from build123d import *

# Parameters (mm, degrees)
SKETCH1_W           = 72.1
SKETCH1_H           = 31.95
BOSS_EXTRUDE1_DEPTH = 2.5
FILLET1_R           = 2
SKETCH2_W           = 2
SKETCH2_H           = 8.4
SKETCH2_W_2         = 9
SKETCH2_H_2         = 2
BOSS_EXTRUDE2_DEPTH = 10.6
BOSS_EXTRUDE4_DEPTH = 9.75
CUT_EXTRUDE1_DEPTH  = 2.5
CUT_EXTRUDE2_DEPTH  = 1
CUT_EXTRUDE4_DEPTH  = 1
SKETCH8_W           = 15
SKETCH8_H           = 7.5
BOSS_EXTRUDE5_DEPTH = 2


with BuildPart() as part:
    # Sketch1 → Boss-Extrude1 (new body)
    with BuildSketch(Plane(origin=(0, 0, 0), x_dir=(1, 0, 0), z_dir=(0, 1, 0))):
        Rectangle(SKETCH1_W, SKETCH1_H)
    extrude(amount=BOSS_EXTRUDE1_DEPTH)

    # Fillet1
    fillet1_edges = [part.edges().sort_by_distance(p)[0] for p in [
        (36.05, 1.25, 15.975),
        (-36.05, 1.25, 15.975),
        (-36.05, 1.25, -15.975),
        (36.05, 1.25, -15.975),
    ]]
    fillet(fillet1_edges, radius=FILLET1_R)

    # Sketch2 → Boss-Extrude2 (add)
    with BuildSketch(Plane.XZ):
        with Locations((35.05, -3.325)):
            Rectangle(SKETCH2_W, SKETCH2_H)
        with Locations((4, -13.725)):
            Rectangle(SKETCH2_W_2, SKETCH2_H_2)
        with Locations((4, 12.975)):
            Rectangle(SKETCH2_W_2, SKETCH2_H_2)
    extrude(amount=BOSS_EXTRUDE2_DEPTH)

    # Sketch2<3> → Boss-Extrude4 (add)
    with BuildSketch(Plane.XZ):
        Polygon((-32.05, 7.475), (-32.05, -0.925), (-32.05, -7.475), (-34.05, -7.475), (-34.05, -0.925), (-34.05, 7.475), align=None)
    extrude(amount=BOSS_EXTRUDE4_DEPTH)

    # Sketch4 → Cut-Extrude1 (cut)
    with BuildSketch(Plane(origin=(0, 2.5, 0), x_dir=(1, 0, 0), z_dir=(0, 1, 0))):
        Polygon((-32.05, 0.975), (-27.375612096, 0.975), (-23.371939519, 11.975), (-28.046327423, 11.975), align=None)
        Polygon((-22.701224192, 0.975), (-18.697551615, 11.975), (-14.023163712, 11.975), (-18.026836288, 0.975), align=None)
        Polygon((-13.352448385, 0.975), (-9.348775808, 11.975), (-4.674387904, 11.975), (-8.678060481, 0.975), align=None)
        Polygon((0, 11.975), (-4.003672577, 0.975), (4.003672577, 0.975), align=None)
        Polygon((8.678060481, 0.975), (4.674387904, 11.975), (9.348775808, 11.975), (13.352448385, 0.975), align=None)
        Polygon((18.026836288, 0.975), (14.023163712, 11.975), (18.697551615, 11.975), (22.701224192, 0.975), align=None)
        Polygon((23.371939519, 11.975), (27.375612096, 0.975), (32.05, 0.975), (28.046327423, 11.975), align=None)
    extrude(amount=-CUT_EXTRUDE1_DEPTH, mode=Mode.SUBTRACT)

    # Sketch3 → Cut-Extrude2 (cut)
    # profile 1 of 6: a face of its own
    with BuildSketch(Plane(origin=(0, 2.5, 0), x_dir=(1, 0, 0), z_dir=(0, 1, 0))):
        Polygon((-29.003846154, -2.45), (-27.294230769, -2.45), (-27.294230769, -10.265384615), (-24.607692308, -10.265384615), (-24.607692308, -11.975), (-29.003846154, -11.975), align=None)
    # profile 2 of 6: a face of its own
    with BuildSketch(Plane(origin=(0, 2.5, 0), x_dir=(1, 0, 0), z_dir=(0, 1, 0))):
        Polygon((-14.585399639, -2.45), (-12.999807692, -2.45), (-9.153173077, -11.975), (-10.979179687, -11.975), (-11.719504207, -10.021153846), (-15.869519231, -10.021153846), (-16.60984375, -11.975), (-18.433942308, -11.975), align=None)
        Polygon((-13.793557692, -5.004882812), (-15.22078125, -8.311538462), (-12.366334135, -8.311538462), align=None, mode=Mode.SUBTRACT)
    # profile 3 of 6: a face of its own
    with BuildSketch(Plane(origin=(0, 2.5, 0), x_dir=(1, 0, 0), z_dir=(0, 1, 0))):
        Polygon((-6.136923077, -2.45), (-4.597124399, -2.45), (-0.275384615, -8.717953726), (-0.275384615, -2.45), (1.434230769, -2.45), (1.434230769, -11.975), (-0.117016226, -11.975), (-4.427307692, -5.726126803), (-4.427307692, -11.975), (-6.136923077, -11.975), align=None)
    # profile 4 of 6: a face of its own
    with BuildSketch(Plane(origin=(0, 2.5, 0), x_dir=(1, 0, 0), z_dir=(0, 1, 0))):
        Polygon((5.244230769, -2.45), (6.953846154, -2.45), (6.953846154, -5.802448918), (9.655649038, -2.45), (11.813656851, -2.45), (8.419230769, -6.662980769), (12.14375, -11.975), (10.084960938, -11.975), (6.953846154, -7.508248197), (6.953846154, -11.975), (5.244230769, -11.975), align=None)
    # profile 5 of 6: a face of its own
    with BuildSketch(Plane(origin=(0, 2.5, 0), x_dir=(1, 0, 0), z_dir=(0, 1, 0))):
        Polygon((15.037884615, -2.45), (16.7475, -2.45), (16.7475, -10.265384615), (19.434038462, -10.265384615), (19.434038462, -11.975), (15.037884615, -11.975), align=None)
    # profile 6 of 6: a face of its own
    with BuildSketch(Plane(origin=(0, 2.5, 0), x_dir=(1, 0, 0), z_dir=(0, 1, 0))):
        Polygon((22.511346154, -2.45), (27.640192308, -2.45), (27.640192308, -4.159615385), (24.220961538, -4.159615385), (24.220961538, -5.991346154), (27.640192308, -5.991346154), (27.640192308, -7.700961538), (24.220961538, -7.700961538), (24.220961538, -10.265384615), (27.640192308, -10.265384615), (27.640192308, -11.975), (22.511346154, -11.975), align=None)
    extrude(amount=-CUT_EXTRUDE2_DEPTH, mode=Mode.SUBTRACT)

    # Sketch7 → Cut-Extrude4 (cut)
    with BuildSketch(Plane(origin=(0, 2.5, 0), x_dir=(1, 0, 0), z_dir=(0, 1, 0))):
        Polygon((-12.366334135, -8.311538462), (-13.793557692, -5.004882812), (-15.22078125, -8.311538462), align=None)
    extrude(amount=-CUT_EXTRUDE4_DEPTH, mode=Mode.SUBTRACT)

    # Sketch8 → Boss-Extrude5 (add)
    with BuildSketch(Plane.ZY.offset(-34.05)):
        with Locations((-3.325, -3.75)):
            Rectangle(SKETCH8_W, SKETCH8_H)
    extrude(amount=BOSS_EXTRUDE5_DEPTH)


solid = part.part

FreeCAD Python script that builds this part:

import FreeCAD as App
import Part
import Sketcher
from FreeCAD import Vector
Q = App.Units.Quantity


def edges_at(feature, points):
    """Names of the edges that pass closest to the given points."""
    edges = feature.Shape.Edges
    near = lambda p: min(range(len(edges)), key=lambda i: edges[i].distToShape(Part.Vertex(*p))[0])
    return sorted({f"Edge{near(p) + 1}" for p in points})

doc = App.newDocument("Part")
params = doc.addObject("Spreadsheet::Sheet", "Params")
for row, (alias, value) in enumerate([
    ("sketch1_width", "72.1 mm"),
    ("sketch1_height", "31.95 mm"),
    ("pad1_length", "2.5 mm"),
    ("fillet_radius", "2 mm"),
    ("sketch2_width", "2 mm"),
    ("sketch2_width2", "9 mm"),
    ("sketch2_height", "8.4 mm"),
    ("pad2_length", "10.6 mm"),
    ("sketch3_width", "2 mm"),
    ("sketch3_height", "14.95 mm"),
    ("pad3_length", "9.75 mm"),
    ("pocket1_length", "2.5 mm"),
    ("pocket2_length", "1 mm"),
    ("pocket3_length", "1 mm"),
    ("sketch7_height", "15 mm"),
    ("sketch7_width", "7.5 mm"),
    ("pad4_length", "2 mm"),
], start=1):
    params.set(f"A{row}", alias)
    params.set(f"B{row}", "=" + value)
    params.setAlias(f"B{row}", alias)

body = doc.addObject("PartDesign::Body", "Body")

# Sketch on XZ plane
sketch1 = doc.addObject("Sketcher::SketchObject", "Sketch")
body.addObject(sketch1)
sketch1.AttachmentSupport = (doc.XZ_Plane, [""])
sketch1.MapMode = "FlatFace"
sketch1.addGeometry([
    Part.LineSegment(Vector(-36, -16, 0), Vector(-36, 16, 0)),
    Part.LineSegment(Vector(-36, 16, 0), Vector(36, 16, 0)),
    Part.LineSegment(Vector(36, 16, 0), Vector(36, -16, 0)),
    Part.LineSegment(Vector(36, -16, 0), Vector(-36, -16, 0)),
], False)
sketch1.addConstraint([
    Sketcher.Constraint("Coincident", 0, 2, 1, 1),
    Sketcher.Constraint("Coincident", 1, 2, 2, 1),
    Sketcher.Constraint("Coincident", 2, 2, 3, 1),
    Sketcher.Constraint("Coincident", 3, 2, 0, 1),
    Sketcher.Constraint("Vertical", 0),
    Sketcher.Constraint("Horizontal", 1),
    Sketcher.Constraint("Vertical", 2),
    Sketcher.Constraint("Horizontal", 3),
    Sketcher.Constraint("Symmetric", 0, 2, 2, 2, -1, 1),
    Sketcher.Constraint("DistanceX", 1, 1, 1, 2, 72.1),
    Sketcher.Constraint("DistanceY", 0, 1, 0, 2, 31.95),
])
sketch1.setExpression("Constraints[9]", "Params.sketch1_width")
sketch1.setExpression("Constraints[10]", "Params.sketch1_height")
pad1 = doc.addObject("PartDesign::Pad", "Pad")
body.addObject(pad1)
pad1.Profile = sketch1
pad1.setExpression("Length", "Params.pad1_length")
pad1.Reversed = True
doc.recompute()

fillet = doc.addObject("PartDesign::Fillet", "Fillet")
body.addObject(fillet)
fillet.Base = (pad1, edges_at(pad1, [
    (36.05, 1.25, 15.975),
    (-36.05, 1.25, 15.975),
    (-36.05, 1.25, -15.975),
    (36.05, 1.25, -15.975),
]))
fillet.setExpression("Radius", "Params.fillet_radius")

# Sketch on XZ plane
sketch2 = doc.addObject("Sketcher::SketchObject", "Sketch001")
body.addObject(sketch2)
sketch2.AttachmentSupport = (doc.XZ_Plane, [""])
sketch2.MapMode = "FlatFace"
sketch2.addGeometry([
    Part.LineSegment(Vector(34, 0.9, 0), Vector(34, -7.5, 0)),  # 0
    Part.LineSegment(Vector(34, -7.5, 0), Vector(36, -7.5, 0)),  # 1
    Part.LineSegment(Vector(36, -7.5, 0), Vector(36, 0.9, 0)),  # 2
    Part.LineSegment(Vector(36, 0.9, 0), Vector(34, 0.9, 0)),  # 3
    Part.LineSegment(Vector(-0.5, -12.7, 0), Vector(-0.5, -14.7, 0)),  # 4
    Part.LineSegment(Vector(-0.5, -14.7, 0), Vector(8.5, -14.7, 0)),  # 5
    Part.LineSegment(Vector(8.5, -14.7, 0), Vector(8.5, -12.7, 0)),  # 6
    Part.LineSegment(Vector(8.5, -12.7, 0), Vector(-0.5, -12.7, 0)),  # 7
    Part.LineSegment(Vector(-0.5, 14, 0), Vector(-0.5, 12, 0)),  # 8
    Part.LineSegment(Vector(-0.5, 12, 0), Vector(8.5, 12, 0)),  # 9
    Part.LineSegment(Vector(8.5, 12, 0), Vector(8.5, 14, 0)),  # 10
    Part.LineSegment(Vector(8.5, 14, 0), Vector(-0.5, 14, 0)),  # 11
], False)
sketch2.addConstraint([
    Sketcher.Constraint("Coincident", 0, 2, 1, 1),
    Sketcher.Constraint("Coincident", 1, 2, 2, 1),
    Sketcher.Constraint("Coincident", 2, 2, 3, 1),
    Sketcher.Constraint("Coincident", 3, 2, 0, 1),
    Sketcher.Constraint("Coincident", 4, 2, 5, 1),
    Sketcher.Constraint("Coincident", 5, 2, 6, 1),
    Sketcher.Constraint("Coincident", 6, 2, 7, 1),
    Sketcher.Constraint("Coincident", 7, 2, 4, 1),
    Sketcher.Constraint("Coincident", 8, 2, 9, 1),
    Sketcher.Constraint("Coincident", 9, 2, 10, 1),
    Sketcher.Constraint("Coincident", 10, 2, 11, 1),
    Sketcher.Constraint("Coincident", 11, 2, 8, 1),
    Sketcher.Constraint("Vertical", 0),
    Sketcher.Constraint("Horizontal", 1),
    Sketcher.Constraint("Vertical", 2),
    Sketcher.Constraint("Horizontal", 3),
    Sketcher.Constraint("Vertical", 4),
    Sketcher.Constraint("Horizontal", 5),
    Sketcher.Constraint("Vertical", 6),
    Sketcher.Constraint("Horizontal", 7),
    Sketcher.Constraint("Vertical", 8),
    Sketcher.Constraint("Horizontal", 9),
    Sketcher.Constraint("Vertical", 10),
    Sketcher.Constraint("Horizontal", 11),
    Sketcher.Constraint("Vertical", 7, 2, 8, 2),
    Sketcher.Constraint("Vertical", 6, 2, 9, 2),
    Sketcher.Constraint("Equal", 3, 4),
    Sketcher.Constraint("Equal", 6, 8),
    Sketcher.Constraint("DistanceX", 1, 1, 1, 2, 2.0),
    Sketcher.Constraint("DistanceX", 5, 1, 5, 2, 9.0),
    Sketcher.Constraint("DistanceY", 0, 2, 0, 1, 8.4),
    Sketcher.Constraint("DistanceX", 4, 2, -1, 1, 0.5),
    Sketcher.Constraint("DistanceY", 4, 2, 0, 2, 7.2),
    Sketcher.Constraint("DistanceY", 7, 2, 8, 2, 24.7),
    Sketcher.Constraint("DistanceX", -1, 1, 0, 2, 34.05),
    Sketcher.Constraint("DistanceY", 0, 2, -1, 1, 7.525),
])
sketch2.setExpression("Constraints[28]", "Params.sketch2_width")
sketch2.setExpression("Constraints[29]", "Params.sketch2_width2")
sketch2.setExpression("Constraints[30]", "Params.sketch2_height")
pad2 = doc.addObject("PartDesign::Pad", "Pad001")
body.addObject(pad2)
pad2.Profile = sketch2
pad2.setExpression("Length", "Params.pad2_length")

# Sketch on XZ plane
sketch3 = doc.addObject("Sketcher::SketchObject", "Sketch002")
body.addObject(sketch3)
sketch3.AttachmentSupport = (doc.XZ_Plane, [""])
sketch3.MapMode = "FlatFace"
sketch3.addGeometry([
    Part.LineSegment(Vector(-32, -7.5, 0), Vector(-32, 7.5, 0)),
    Part.LineSegment(Vector(-32, 7.5, 0), Vector(-34, 7.5, 0)),
    Part.LineSegment(Vector(-34, 7.5, 0), Vector(-34, -7.5, 0)),
    Part.LineSegment(Vector(-34, -7.5, 0), Vector(-32, -7.5, 0)),
], False)
sketch3.addConstraint([
    Sketcher.Constraint("Coincident", 0, 2, 1, 1),
    Sketcher.Constraint("Coincident", 1, 2, 2, 1),
    Sketcher.Constraint("Coincident", 2, 2, 3, 1),
    Sketcher.Constraint("Coincident", 3, 2, 0, 1),
    Sketcher.Constraint("Vertical", 0),
    Sketcher.Constraint("Horizontal", 1),
    Sketcher.Constraint("Vertical", 2),
    Sketcher.Constraint("Horizontal", 3),
    Sketcher.Constraint("DistanceX", 1, 2, 1, 1, 2.0),
    Sketcher.Constraint("DistanceY", 0, 1, 0, 2, 14.95),
    Sketcher.Constraint("DistanceX", 0, 2, -1, 1, 32.05),
    Sketcher.Constraint("DistanceY", -1, 1, 0, 2, 7.475),
])
sketch3.setExpression("Constraints[8]", "Params.sketch3_width")
sketch3.setExpression("Constraints[9]", "Params.sketch3_height")
pad3 = doc.addObject("PartDesign::Pad", "Pad002")
body.addObject(pad3)
pad3.Profile = sketch3
pad3.setExpression("Length", "Params.pad3_length")

# Sketch on XZ plane
sketch4 = doc.addObject("Sketcher::SketchObject", "Sketch003")
body.addObject(sketch4)
sketch4.AttachmentSupport = (doc.XZ_Plane, [""])
sketch4.MapMode = "FlatFace"
sketch4.AttachmentOffset = App.Placement(Vector(0, 0, -2.5), App.Rotation())
sketch4.addGeometry([
    Part.LineSegment(Vector(-32, -1, 0), Vector(-27.4, -1, 0)),  # 0
    Part.LineSegment(Vector(-27.4, -1, 0), Vector(-23.4, -12, 0)),  # 1
    Part.LineSegment(Vector(-23.4, -12, 0), Vector(-28, -12, 0)),  # 2
    Part.LineSegment(Vector(-28, -12, 0), Vector(-32, -1, 0)),  # 3
    Part.LineSegment(Vector(-18.7, -12, 0), Vector(-22.7, -1, 0)),  # 4
    Part.LineSegment(Vector(-22.7, -1, 0), Vector(-18, -1, 0)),  # 5
    Part.LineSegment(Vector(-18, -1, 0), Vector(-14, -12, 0)),  # 6
    Part.LineSegment(Vector(-14, -12, 0), Vector(-18.7, -12, 0)),  # 7
    Part.LineSegment(Vector(-9.3, -12, 0), Vector(-13.4, -1, 0)),  # 8
    Part.LineSegment(Vector(-13.4, -1, 0), Vector(-8.7, -1, 0)),  # 9
    Part.LineSegment(Vector(-8.7, -1, 0), Vector(-4.7, -12, 0)),  # 10
    Part.LineSegment(Vector(-4.7, -12, 0), Vector(-9.3, -12, 0)),  # 11
    Part.LineSegment(Vector(0, -12, 0), Vector(-4, -1, 0)),  # 12
    Part.LineSegment(Vector(-4, -1, 0), Vector(4, -1, 0)),  # 13
    Part.LineSegment(Vector(4, -1, 0), Vector(0, -12, 0)),  # 14
    Part.LineSegment(Vector(4.7, -12, 0), Vector(8.7, -1, 0)),  # 15
    Part.LineSegment(Vector(8.7, -1, 0), Vector(13.4, -1, 0)),  # 16
    Part.LineSegment(Vector(13.4, -1, 0), Vector(9.3, -12, 0)),  # 17
    Part.LineSegment(Vector(9.3, -12, 0), Vector(4.7, -12, 0)),  # 18
    Part.LineSegment(Vector(14, -12, 0), Vector(18, -1, 0)),  # 19
    Part.LineSegment(Vector(18, -1, 0), Vector(22.7, -1, 0)),  # 20
    Part.LineSegment(Vector(22.7, -1, 0), Vector(18.7, -12, 0)),  # 21
    Part.LineSegment(Vector(18.7, -12, 0), Vector(14, -12, 0)),  # 22
    Part.LineSegment(Vector(23.4, -12, 0), Vector(27.4, -1, 0)),  # 23
    Part.LineSegment(Vector(27.4, -1, 0), Vector(32, -1, 0)),  # 24
    Part.LineSegment(Vector(32, -1, 0), Vector(28, -12, 0)),  # 25
    Part.LineSegment(Vector(28, -12, 0), Vector(23.4, -12, 0)),  # 26
], False)
sketch4.addConstraint([
    Sketcher.Constraint("Coincident", 0, 2, 1, 1),
    Sketcher.Constraint("Coincident", 1, 2, 2, 1),
    Sketcher.Constraint("Coincident", 2, 2, 3, 1),
    Sketcher.Constraint("Coincident", 3, 2, 0, 1),
    Sketcher.Constraint("Coincident", 4, 2, 5, 1),
    Sketcher.Constraint("Coincident", 5, 2, 6, 1),
    Sketcher.Constraint("Coincident", 6, 2, 7, 1),
    Sketcher.Constraint("Coincident", 7, 2, 4, 1),
    Sketcher.Constraint("Coincident", 8, 2, 9, 1),
    Sketcher.Constraint("Coincident", 9, 2, 10, 1),
    Sketcher.Constraint("Coincident", 10, 2, 11, 1),
    Sketcher.Constraint("Coincident", 11, 2, 8, 1),
    Sketcher.Constraint("Coincident", 12, 2, 13, 1),
    Sketcher.Constraint("Coincident", 13, 2, 14, 1),
    Sketcher.Constraint("Coincident", 14, 2, 12, 1),
    Sketcher.Constraint("Coincident", 15, 2, 16, 1),
    Sketcher.Constraint("Coincident", 16, 2, 17, 1),
    Sketcher.Constraint("Coincident", 17, 2, 18, 1),
    Sketcher.Constraint("Coincident", 18, 2, 15, 1),
    Sketcher.Constraint("Coincident", 19, 2, 20, 1),
    Sketcher.Constraint("Coincident", 20, 2, 21, 1),
    Sketcher.Constraint("Coincident", 21, 2, 22, 1),
    Sketcher.Constraint("Coincident", 22, 2, 19, 1),
    Sketcher.Constraint("Coincident", 23, 2, 24, 1),
    Sketcher.Constraint("Coincident", 24, 2, 25, 1),
    Sketcher.Constraint("Coincident", 25, 2, 26, 1),
    Sketcher.Constraint("Coincident", 26, 2, 23, 1),
    Sketcher.Constraint("Horizontal", 0),
    Sketcher.Constraint("Horizontal", 2),
    Sketcher.Constraint("Horizontal", 5),
    Sketcher.Constraint("Horizontal", 7),
    Sketcher.Constraint("Horizontal", 9),
    Sketcher.Constraint("Horizontal", 11),
    Sketcher.Constraint("Horizontal", 13),
    Sketcher.Constraint("Horizontal", 16),
    Sketcher.Constraint("Horizontal", 18),
    Sketcher.Constraint("Horizontal", 20),
    Sketcher.Constraint("Horizontal", 22),
    Sketcher.Constraint("Horizontal", 24),
    Sketcher.Constraint("Horizontal", 26),
    Sketcher.Constraint("Symmetric", 9, 2, 15, 2, -2),
    Sketcher.Constraint("Symmetric", 11, 2, 17, 2, -2),
    Sketcher.Constraint("Symmetric", 5, 2, 19, 2, -2),
    Sketcher.Constraint("Symmetric", 7, 2, 21, 2, -2),
    Sketcher.Constraint("Symmetric", 0, 2, 23, 2, -2),
    Sketcher.Constraint("Symmetric", 2, 2, 25, 2, -2),
    Sketcher.Constraint("PointOnObject", 14, 2, -2),
    Sketcher.Constraint("Parallel", 1, 3),
    Sketcher.Constraint("Parallel", 3, 4),
    Sketcher.Constraint("Parallel", 4, 6),
    Sketcher.Constraint("Parallel", 6, 8),
    Sketcher.Constraint("Parallel", 8, 10),
    Sketcher.Constraint("Parallel", 10, 12),
    Sketcher.Constraint("Parallel", 14, 15),
    Sketcher.Constraint("Parallel", 15, 17),
    Sketcher.Constraint("Parallel", 17, 19),
    Sketcher.Constraint("Parallel", 19, 21),
    Sketcher.Constraint("Parallel", 21, 23),
    Sketcher.Constraint("Parallel", 23, 25),
    Sketcher.Constraint("Horizontal", 3, 2, 4, 2),
    Sketcher.Constraint("Horizontal", 2, 2, 6, 2),
    Sketcher.Constraint("Horizontal", 5, 2, 8, 2),
    Sketcher.Constraint("Horizontal", 7, 2, 10, 2),
    Sketcher.Constraint("Horizontal", 9, 2, 12, 2),
    Sketcher.Constraint("Horizontal", 11, 2, 14, 2),
    Sketcher.Constraint("Equal", 2, 5),
    Sketcher.Constraint("Equal", 7, 9),
    Sketcher.Constraint("Equal", 11, 16),
    Sketcher.Constraint("Angle", 1, Q("-70 deg")),
    Sketcher.Constraint("DistanceY", 1, 2, 0, 2, 11.0),
    Sketcher.Constraint("DistanceX", 3, 2, -1, 1, 32.05),
    Sketcher.Constraint("DistanceY", 0, 2, -1, 1, 0.975),
    Sketcher.Constraint("DistanceX", 0, 1, 0, 2, 4.674388),
    Sketcher.Constraint("DistanceX", 7, 2, -1, 1, 18.697552),
    Sketcher.Constraint("DistanceX", 8, 2, -1, 1, 13.352448),
])
pocket1 = doc.addObject("PartDesign::Pocket", "Pocket")
body.addObject(pocket1)
pocket1.Profile = sketch4
pocket1.setExpression("Length", "Params.pocket1_length")
pocket1.Reversed = True

# Sketch on XZ plane
sketch5 = doc.addObject("Sketcher::SketchObject", "Sketch004")
body.addObject(sketch5)
sketch5.AttachmentSupport = (doc.XZ_Plane, [""])
sketch5.MapMode = "FlatFace"
sketch5.AttachmentOffset = App.Placement(Vector(0, 0, -2.5), App.Rotation())
sketch5.addGeometry([
    Part.LineSegment(Vector(-27.3, 2.5, 0), Vector(-29, 2.5, 0)),  # 0
    Part.LineSegment(Vector(-29, 2.5, 0), Vector(-29, 12, 0)),  # 1
    Part.LineSegment(Vector(-29, 12, 0), Vector(-24.6, 12, 0)),  # 2
    Part.LineSegment(Vector(-24.6, 12, 0), Vector(-24.6, 10.3, 0)),  # 3
    Part.LineSegment(Vector(-24.6, 10.3, 0), Vector(-27.3, 10.3, 0)),  # 4
    Part.LineSegment(Vector(-27.3, 10.3, 0), Vector(-27.3, 2.5, 0)),  # 5
    Part.LineSegment(Vector(-13, 2.5, 0), Vector(-14.6, 2.5, 0)),  # 6
    Part.LineSegment(Vector(-14.6, 2.5, 0), Vector(-18.4, 12, 0)),  # 7
    Part.LineSegment(Vector(-18.4, 12, 0), Vector(-16.6, 12, 0)),  # 8
    Part.LineSegment(Vector(-16.6, 12, 0), Vector(-15.9, 10, 0)),  # 9
    Part.LineSegment(Vector(-15.9, 10, 0), Vector(-11.7, 10, 0)),  # 10
    Part.LineSegment(Vector(-11.7, 10, 0), Vector(-11, 12, 0)),  # 11
    Part.LineSegment(Vector(-11, 12, 0), Vector(-9.2, 12, 0)),  # 12
    Part.LineSegment(Vector(-9.2, 12, 0), Vector(-13, 2.5, 0)),  # 13
    Part.LineSegment(Vector(-13.8, 5, 0), Vector(-12.4, 8.3, 0)),  # 14
    Part.LineSegment(Vector(-12.4, 8.3, 0), Vector(-15.2, 8.3, 0)),  # 15
    Part.LineSegment(Vector(-15.2, 8.3, 0), Vector(-13.8, 5, 0)),  # 16
    Part.LineSegment(Vector(-4.6, 2.5, 0), Vector(-6.1, 2.5, 0)),  # 17
    Part.LineSegment(Vector(-6.1, 2.5, 0), Vector(-6.1, 12, 0)),  # 18
    Part.LineSegment(Vector(-6.1, 12, 0), Vector(-4.4, 12, 0)),  # 19
    Part.LineSegment(Vector(-4.4, 12, 0), Vector(-4.4, 5.7, 0)),  # 20
    Part.LineSegment(Vector(-4.4, 5.7, 0), Vector(-0.1, 12, 0)),  # 21
    Part.LineSegment(Vector(-0.1, 12, 0), Vector(1.4, 12, 0)),  # 22
    Part.LineSegment(Vector(1.4, 12, 0), Vector(1.4, 2.5, 0)),  # 23
    Part.LineSegment(Vector(1.4, 2.5, 0), Vector(-0.3, 2.5, 0)),  # 24
    Part.LineSegment(Vector(-0.3, 2.5, 0), Vector(-0.3, 8.7, 0)),  # 25
    Part.LineSegment(Vector(-0.3, 8.7, 0), Vector(-4.6, 2.5, 0)),  # 26
    Part.LineSegment(Vector(7, 2.5, 0), Vector(5.2, 2.5, 0)),  # 27
    Part.LineSegment(Vector(5.2, 2.5, 0), Vector(5.2, 12, 0)),  # 28
    Part.LineSegment(Vector(5.2, 12, 0), Vector(7, 12, 0)),  # 29
    Part.LineSegment(Vector(7, 12, 0), Vector(7, 7.5, 0)),  # 30
    Part.LineSegment(Vector(7, 7.5, 0), Vector(10.1, 12, 0)),  # 31
    Part.LineSegment(Vector(10.1, 12, 0), Vector(12.1, 12, 0)),  # 32
    Part.LineSegment(Vector(12.1, 12, 0), Vector(8.4, 6.7, 0)),  # 33
    Part.LineSegment(Vector(8.4, 6.7, 0), Vector(11.8, 2.5, 0)),  # 34
    Part.LineSegment(Vector(11.8, 2.5, 0), Vector(9.7, 2.5, 0)),  # 35
    Part.LineSegment(Vector(9.7, 2.5, 0), Vector(7, 5.8, 0)),  # 36
    Part.LineSegment(Vector(7, 5.8, 0), Vector(7, 2.5, 0)),  # 37
    Part.LineSegment(Vector(16.7, 2.5, 0), Vector(15, 2.5, 0)),  # 38
    Part.LineSegment(Vector(15, 2.5, 0), Vector(15, 12, 0)),  # 39
    Part.LineSegment(Vector(15, 12, 0), Vector(19.4, 12, 0)),  # 40
    Part.LineSegment(Vector(19.4, 12, 0), Vector(19.4, 10.3, 0)),  # 41
    Part.LineSegment(Vector(19.4, 10.3, 0), Vector(16.7, 10.3, 0)),  # 42
    Part.LineSegment(Vector(16.7, 10.3, 0), Vector(16.7, 2.5, 0)),  # 43
    Part.LineSegment(Vector(27.6, 2.5, 0), Vector(22.5, 2.5, 0)),  # 44
    Part.LineSegment(Vector(22.5, 2.5, 0), Vector(22.5, 12, 0)),  # 45
    Part.LineSegment(Vector(22.5, 12, 0), Vector(27.6, 12, 0)),  # 46
    Part.LineSegment(Vector(27.6, 12, 0), Vector(27.6, 10.3, 0)),  # 47
    Part.LineSegment(Vector(27.6, 10.3, 0), Vector(24.2, 10.3, 0)),  # 48
    Part.LineSegment(Vector(24.2, 10.3, 0), Vector(24.2, 7.7, 0)),  # 49
    Part.LineSegment(Vector(24.2, 7.7, 0), Vector(27.6, 7.7, 0)),  # 50
    Part.LineSegment(Vector(27.6, 7.7, 0), Vector(27.6, 6, 0)),  # 51
    Part.LineSegment(Vector(27.6, 6, 0), Vector(24.2, 6, 0)),  # 52
    Part.LineSegment(Vector(24.2, 6, 0), Vector(24.2, 4.2, 0)),  # 53
    Part.LineSegment(Vector(24.2, 4.2, 0), Vector(27.6, 4.2, 0)),  # 54
    Part.LineSegment(Vector(27.6, 4.2, 0), Vector(27.6, 2.5, 0)),  # 55
], False)
sketch5.addConstraint([
    Sketcher.Constraint("Coincident", 0, 2, 1, 1),
    Sketcher.Constraint("Coincident", 1, 2, 2, 1),
    Sketcher.Constraint("Coincident", 2, 2, 3, 1),
    Sketcher.Constraint("Coincident", 3, 2, 4, 1),
    Sketcher.Constraint("Coincident", 4, 2, 5, 1),
    Sketcher.Constraint("Coincident", 5, 2, 0, 1),
    Sketcher.Constraint("Coincident", 6, 2, 7, 1),
    Sketcher.Constraint("Coincident", 7, 2, 8, 1),
    Sketcher.Constraint("Coincident", 8, 2, 9, 1),
    Sketcher.Constraint("Coincident", 9, 2, 10, 1),
    Sketcher.Constraint("Coincident", 10, 2, 11, 1),
    Sketcher.Constraint("Coincident", 11, 2, 12, 1),
    Sketcher.Constraint("Coincident", 12, 2, 13, 1),
    Sketcher.Constraint("Coincident", 13, 2, 6, 1),
    Sketcher.Constraint("Coincident", 14, 2, 15, 1),
    Sketcher.Constraint("Coincident", 15, 2, 16, 1),
    Sketcher.Constraint("Coincident", 16, 2, 14, 1),
    Sketcher.Constraint("Coincident", 17, 2, 18, 1),
    Sketcher.Constraint("Coincident", 18, 2, 19, 1),
    Sketcher.Constraint("Coincident", 19, 2, 20, 1),
    Sketcher.Constraint("Coincident", 20, 2, 21, 1),
    Sketcher.Constraint("Coincident", 21, 2, 22, 1),
    Sketcher.Constraint("Coincident", 22, 2, 23, 1),
    Sketcher.Constraint("Coincident", 23, 2, 24, 1),
    Sketcher.Constraint("Coincident", 24, 2, 25, 1),
    Sketcher.Constraint("Coincident", 25, 2, 26, 1),
    Sketcher.Constraint("Coincident", 26, 2, 17, 1),
    Sketcher.Constraint("Coincident", 27, 2, 28, 1),
    Sketcher.Constraint("Coincident", 28, 2, 29, 1),
    Sketcher.Constraint("Coincident", 29, 2, 30, 1),
    Sketcher.Constraint("Coincident", 30, 2, 31, 1),
    Sketcher.Constraint("Coincident", 31, 2, 32, 1),
    Sketcher.Constraint("Coincident", 32, 2, 33, 1),
    Sketcher.Constraint("Coincident", 33, 2, 34, 1),
    Sketcher.Constraint("Coincident", 34, 2, 35, 1),
    Sketcher.Constraint("Coincident", 35, 2, 36, 1),
    Sketcher.Constraint("Coincident", 36, 2, 37, 1),
    Sketcher.Constraint("Coincident", 37, 2, 27, 1),
    Sketcher.Constraint("Coincident", 38, 2, 39, 1),
    Sketcher.Constraint("Coincident", 39, 2, 40, 1),
    Sketcher.Constraint("Coincident", 40, 2, 41, 1),
    Sketcher.Constraint("Coincident", 41, 2, 42, 1),
    Sketcher.Constraint("Coincident", 42, 2, 43, 1),
    Sketcher.Constraint("Coincident", 43, 2, 38, 1),
    Sketcher.Constraint("Coincident", 44, 2, 45, 1),
    Sketcher.Constraint("Coincident", 45, 2, 46, 1),
    Sketcher.Constraint("Coincident", 46, 2, 47, 1),
    Sketcher.Constraint("Coincident", 47, 2, 48, 1),
    Sketcher.Constraint("Coincident", 48, 2, 49, 1),
    Sketcher.Constraint("Coincident", 49, 2, 50, 1),
    Sketcher.Constraint("Coincident", 50, 2, 51, 1),
    Sketcher.Constraint("Coincident", 51, 2, 52, 1),
    Sketcher.Constraint("Coincident", 52, 2, 53, 1),
    Sketcher.Constraint("Coincident", 53, 2, 54, 1),
    Sketcher.Constraint("Coincident", 54, 2, 55, 1),
    Sketcher.Constraint("Coincident", 55, 2, 44, 1),
    Sketcher.Constraint("Horizontal", 0),
    Sketcher.Constraint("Vertical", 1),
    Sketcher.Constraint("Horizontal", 2),
    Sketcher.Constraint("Vertical", 3),
    Sketcher.Constraint("Horizontal", 4),
    Sketcher.Constraint("Vertical", 5),
    Sketcher.Constraint("Horizontal", 6),
    Sketcher.Constraint("Horizontal", 8),
    Sketcher.Constraint("Horizontal", 10),
    Sketcher.Constraint("Horizontal", 12),
    Sketcher.Constraint("Horizontal", 15),
    Sketcher.Constraint("Horizontal", 17),
    Sketcher.Constraint("Vertical", 18),
    Sketcher.Constraint("Horizontal", 19),
    Sketcher.Constraint("Vertical", 20),
    Sketcher.Constraint("Horizontal", 22),
    Sketcher.Constraint("Vertical", 23),
    Sketcher.Constraint("Horizontal", 24),
    Sketcher.Constraint("Vertical", 25),
    Sketcher.Constraint("Horizontal", 27),
    Sketcher.Constraint("Vertical", 28),
    Sketcher.Constraint("Horizontal", 29),
    Sketcher.Constraint("Vertical", 30),
    Sketcher.Constraint("Horizontal", 32),
    Sketcher.Constraint("Horizontal", 35),
    Sketcher.Constraint("Vertical", 37),
    Sketcher.Constraint("Horizontal", 38),
    Sketcher.Constraint("Vertical", 39),
    Sketcher.Constraint("Horizontal", 40),
    Sketcher.Constraint("Vertical", 41),
    Sketcher.Constraint("Horizontal", 42),
    Sketcher.Constraint("Vertical", 43),
    Sketcher.Constraint("Horizontal", 44),
    Sketcher.Constraint("Vertical", 45),
    Sketcher.Constraint("Horizontal", 46),
    Sketcher.Constraint("Vertical", 47),
    Sketcher.Constraint("Horizontal", 48),
    Sketcher.Constraint("Vertical", 49),
    Sketcher.Constraint("Horizontal", 50),
    Sketcher.Constraint("Vertical", 51),
    Sketcher.Constraint("Horizontal", 52),
    Sketcher.Constraint("Vertical", 53),
    Sketcher.Constraint("Horizontal", 54),
    Sketcher.Constraint("Vertical", 55),
    Sketcher.Constraint("Horizontal", 5, 2, 6, 2),
    Sketcher.Constraint("Horizontal", 2, 2, 7, 2),
    Sketcher.Constraint("Horizontal", 8, 2, 11, 2),
    Sketcher.Constraint("Horizontal", 13, 2, 17, 2),
    Sketcher.Constraint("Horizontal", 12, 2, 18, 2),
    Sketcher.Constraint("Horizontal", 19, 2, 21, 2),
    Sketcher.Constraint("Horizontal", 17, 2, 23, 2),
    Sketcher.Constraint("Horizontal", 26, 2, 27, 2),
    Sketcher.Constraint("Horizontal", 22, 2, 28, 2),
    Sketcher.Constraint("Horizontal", 29, 2, 31, 2),
    Sketcher.Constraint("Horizontal", 27, 2, 34, 2),
    Sketcher.Constraint("Horizontal", 37, 2, 38, 2),
    Sketcher.Constraint("Horizontal", 32, 2, 39, 2),
    Sketcher.Constraint("Horizontal", 4, 2, 41, 2),
    Sketcher.Constraint("Horizontal", 43, 2, 44, 2),
    Sketcher.Constraint("Horizontal", 40, 2, 45, 2),
    Sketcher.Constraint("Horizontal", 42, 2, 47, 2),
    Sketcher.Constraint("Vertical", 30, 2, 36, 2),
    Sketcher.Constraint("Vertical", 47, 2, 50, 2),
    Sketcher.Constraint("Vertical", 49, 2, 52, 2),
    Sketcher.Constraint("Vertical", 51, 2, 54, 2),
    Sketcher.Constraint("Equal", 0, 19),
    Sketcher.Constraint("Equal", 19, 24),
    Sketcher.Constraint("Equal", 24, 27),
    Sketcher.Constraint("Equal", 29, 38),
    Sketcher.Constraint("Equal", 2, 40),
    Sketcher.Constraint("Equal", 38, 3),
    Sketcher.Constraint("Equal", 47, 51),
    Sketcher.Constraint("Equal", 51, 55),
    Sketcher.Constraint("Equal", 9, 11),
    Sketcher.Constraint("Equal", 14, 16),
    Sketcher.Constraint("DistanceY", 1, 1, 1, 2, 9.525),
    Sketcher.Constraint("DistanceY", -1, 1, 0, 2, 2.45),
    Sketcher.Constraint("DistanceX", 23, 2, 27, 2, 3.81),
    Sketcher.Constraint("DistanceX", 8, 1, 8, 2, 1.824099),
    Sketcher.Constraint("DistanceX", 17, 2, 17, 1, 1.539799),
    Sketcher.Constraint("DistanceX", 27, 2, 33, 2, 3.175),
    Sketcher.Constraint("Distance", 9, 2.089401),
    Sketcher.Constraint("Distance", 13, 10.272401),
    Sketcher.Constraint("Distance", 34, 5.410299),
    Sketcher.Constraint("DistanceX", 4, 2, 4, 1, 2.686538),
    Sketcher.Constraint("DistanceX", 6, 2, 6, 1, 1.585592),
    Sketcher.Constraint("DistanceX", 32, 1, 32, 2, 2.058789),
    Sketcher.Constraint("DistanceX", 48, 2, 48, 1, 3.419231),
    Sketcher.Constraint("DistanceY", 30, 2, 30, 1, 4.466752),
    Sketcher.Constraint("DistanceY", 37, 2, 37, 1, 3.352449),
    Sketcher.Constraint("DistanceY", 53, 2, 53, 1, 1.831731),
    Sketcher.Constraint("DistanceX", 6, 2, -1, 1, 14.5854),
    Sketcher.Constraint("DistanceX", -1, 1, 42, 2, 16.7475),
    Sketcher.Constraint("Distance", 14, 3.601519),
    Sketcher.Constraint("Distance", 33, 6.487649),
    Sketcher.Constraint("DistanceX", 0, 2, 0, 1, 1.709615),
    Sketcher.Constraint("DistanceX", 10, 1, 10, 2, 4.150015),
    Sketcher.Constraint("DistanceX", 12, 1, 12, 2, 1.826007),
    Sketcher.Constraint("DistanceX", 15, 2, 15, 1, 2.854447),
    Sketcher.Constraint("DistanceX", 22, 1, 22, 2, 1.551247),
    Sketcher.Constraint("DistanceX", 35, 2, 35, 1, 2.158008),
    Sketcher.Constraint("DistanceX", 44, 2, 44, 1, 5.128846),
    Sketcher.Constraint("DistanceY", 20, 2, 20, 1, 6.248873),
    Sketcher.Constraint("DistanceY", 25, 1, 25, 2, 6.267954),
    Sketcher.Constraint("DistanceX", 4, 2, -1, 1, 27.294231),
    Sketcher.Constraint("DistanceX", 9, 2, -1, 1, 15.869519),
    Sketcher.Constraint("DistanceY", -1, 1, 14, 2, 8.311538),
    Sketcher.Constraint("DistanceX", 15, 2, -1, 1, 15.220781),
    Sketcher.Constraint("DistanceX", -1, 1, 22, 2, 1.434231),
    Sketcher.Constraint("DistanceX", -1, 1, 31, 2, 10.084961),
    Sketcher.Constraint("DistanceX", -1, 1, 48, 2, 24.220962),
    Sketcher.Constraint("DistanceX", 14, 2, 17, 2, 6.229411),
])
pocket2 = doc.addObject("PartDesign::Pocket", "Pocket001")
body.addObject(pocket2)
pocket2.Profile = sketch5
pocket2.setExpression("Length", "Params.pocket2_length")
pocket2.Reversed = True

# Sketch on XZ plane
sketch6 = doc.addObject("Sketcher::SketchObject", "Sketch005")
body.addObject(sketch6)
sketch6.AttachmentSupport = (doc.XZ_Plane, [""])
sketch6.MapMode = "FlatFace"
sketch6.AttachmentOffset = App.Placement(Vector(0, 0, -2.5), App.Rotation())
sketch6.addGeometry([
    Part.LineSegment(Vector(-12.4, 8.3, 0), Vector(-13.8, 5, 0)),
    Part.LineSegment(Vector(-13.8, 5, 0), Vector(-15.2, 8.3, 0)),
    Part.LineSegment(Vector(-15.2, 8.3, 0), Vector(-12.4, 8.3, 0)),
], False)
sketch6.addConstraint([
    Sketcher.Constraint("Coincident", 0, 2, 1, 1),
    Sketcher.Constraint("Coincident", 1, 2, 2, 1),
    Sketcher.Constraint("Coincident", 2, 2, 0, 1),
    Sketcher.Constraint("Horizontal", 2),
    Sketcher.Constraint("Equal", 0, 1),
    Sketcher.Constraint("Distance", 0, 3.601519),
    Sketcher.Constraint("DistanceX", 2, 1, 2, 2, 2.854447),
    Sketcher.Constraint("DistanceX", 1, 2, -1, 1, 15.220781),
    Sketcher.Constraint("DistanceY", -1, 1, 1, 2, 8.311538),
])
pocket3 = doc.addObject("PartDesign::Pocket", "Pocket002")
body.addObject(pocket3)
pocket3.Profile = sketch6
pocket3.setExpression("Length", "Params.pocket3_length")
pocket3.Reversed = True

# Sketch on YZ plane
sketch7 = doc.addObject("Sketcher::SketchObject", "Sketch006")
body.addObject(sketch7)
sketch7.AttachmentSupport = (doc.YZ_Plane, [""])
sketch7.MapMode = "FlatFace"
sketch7.AttachmentOffset = App.Placement(Vector(0, 0, 34.05), App.Rotation())
sketch7.addGeometry([
    Part.LineSegment(Vector(0, -11, 0), Vector(-8, -11, 0)),
    Part.LineSegment(Vector(-8, -11, 0), Vector(-8, 4, 0)),
    Part.LineSegment(Vector(-8, 4, 0), Vector(0, 4, 0)),
    Part.LineSegment(Vector(0, 4, 0), Vector(0, -11, 0)),
], False)
sketch7.addConstraint([
    Sketcher.Constraint("Coincident", 0, 2, 1, 1),
    Sketcher.Constraint("Coincident", 1, 2, 2, 1),
    Sketcher.Constraint("Coincident", 2, 2, 3, 1),
    Sketcher.Constraint("Coincident", 3, 2, 0, 1),
    Sketcher.Constraint("Horizontal", 0),
    Sketcher.Constraint("Vertical", 1),
    Sketcher.Constraint("Horizontal", 2),
    Sketcher.Constraint("Vertical", 3),
    Sketcher.Constraint("PointOnObject", 2, 2, -2),
    Sketcher.Constraint("DistanceY", 1, 1, 1, 2, 15.0),
    Sketcher.Constraint("DistanceX", 0, 2, 0, 1, 7.5),
    Sketcher.Constraint("DistanceY", 0, 2, -1, 1, 10.825),
])
sketch7.setExpression("Constraints[9]", "Params.sketch7_height")
sketch7.setExpression("Constraints[10]", "Params.sketch7_width")
pad4 = doc.addObject("PartDesign::Pad", "Pad003")
body.addObject(pad4)
pad4.Profile = sketch7
pad4.setExpression("Length", "Params.pad4_length")
pad4.Reversed = True

doc.recompute()
